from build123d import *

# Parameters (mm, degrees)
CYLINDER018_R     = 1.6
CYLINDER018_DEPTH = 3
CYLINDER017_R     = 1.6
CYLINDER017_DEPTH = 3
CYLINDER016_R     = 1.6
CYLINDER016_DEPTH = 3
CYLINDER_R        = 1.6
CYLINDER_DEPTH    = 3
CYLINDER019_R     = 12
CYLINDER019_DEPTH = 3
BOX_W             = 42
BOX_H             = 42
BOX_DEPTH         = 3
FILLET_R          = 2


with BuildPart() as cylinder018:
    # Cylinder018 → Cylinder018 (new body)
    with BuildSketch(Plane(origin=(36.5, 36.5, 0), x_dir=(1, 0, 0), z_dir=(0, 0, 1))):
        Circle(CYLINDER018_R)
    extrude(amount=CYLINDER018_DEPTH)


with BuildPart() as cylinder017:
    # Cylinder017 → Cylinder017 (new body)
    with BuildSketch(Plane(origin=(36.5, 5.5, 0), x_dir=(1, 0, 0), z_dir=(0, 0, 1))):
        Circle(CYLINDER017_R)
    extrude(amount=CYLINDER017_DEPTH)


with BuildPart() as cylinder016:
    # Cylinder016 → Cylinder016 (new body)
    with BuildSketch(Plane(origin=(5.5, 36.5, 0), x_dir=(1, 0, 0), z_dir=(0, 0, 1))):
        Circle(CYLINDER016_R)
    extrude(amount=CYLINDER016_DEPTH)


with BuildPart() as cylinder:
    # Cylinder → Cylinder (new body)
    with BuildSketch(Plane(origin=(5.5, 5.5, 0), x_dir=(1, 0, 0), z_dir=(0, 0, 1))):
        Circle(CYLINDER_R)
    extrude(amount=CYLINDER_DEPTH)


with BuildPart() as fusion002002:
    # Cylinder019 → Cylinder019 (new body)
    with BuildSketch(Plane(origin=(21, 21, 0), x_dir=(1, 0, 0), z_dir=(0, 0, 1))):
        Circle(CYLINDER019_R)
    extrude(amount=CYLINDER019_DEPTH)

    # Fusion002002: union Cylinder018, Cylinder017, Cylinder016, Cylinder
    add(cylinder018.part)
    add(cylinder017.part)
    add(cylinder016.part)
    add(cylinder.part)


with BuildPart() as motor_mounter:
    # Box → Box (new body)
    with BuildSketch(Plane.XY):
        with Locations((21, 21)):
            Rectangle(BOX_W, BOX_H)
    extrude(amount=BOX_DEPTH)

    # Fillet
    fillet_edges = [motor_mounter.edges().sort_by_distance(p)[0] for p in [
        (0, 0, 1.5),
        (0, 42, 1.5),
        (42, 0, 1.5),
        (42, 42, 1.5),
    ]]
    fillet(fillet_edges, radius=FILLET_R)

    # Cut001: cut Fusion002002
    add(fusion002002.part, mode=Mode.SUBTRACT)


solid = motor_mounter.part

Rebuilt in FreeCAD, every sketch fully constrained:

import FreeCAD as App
import Part
import Sketcher
from FreeCAD import Vector
Q = App.Units.Quantity


def edges_at(feature, points):
    """Names of the edges that pass closest to the given points."""
    edges = feature.Shape.Edges
    near = lambda p: min(range(len(edges)), key=lambda i: edges[i].distToShape(Part.Vertex(*p))[0])
    return sorted({f"Edge{near(p) + 1}" for p in points})

doc = App.newDocument("Part")
params = doc.addObject("Spreadsheet::Sheet", "Params")
for row, (alias, value) in enumerate([
    ("sketch1_diameter", "3.2 mm"),
    ("pad1_length", "3 mm"),
    ("sketch2_diameter", "3.2 mm"),
    ("pad2_length", "3 mm"),
    ("sketch3_diameter", "3.2 mm"),
    ("pad3_length", "3 mm"),
    ("sketch4_diameter", "3.2 mm"),
    ("pad4_length", "3 mm"),
    ("sketch5_diameter", "24 mm"),
    ("pad5_length", "3 mm"),
    ("sketch6_width", "42 mm"),
    ("pad6_length", "3 mm"),
    ("fillet_radius", "2 mm"),
], start=1):
    params.set(f"A{row}", alias)
    params.set(f"B{row}", "=" + value)
    params.setAlias(f"B{row}", alias)

body = doc.addObject("PartDesign::Body", "Body")

# Sketch on XY plane
sketch1 = body.newObject("Sketcher::SketchObject", "Sketch")
sketch1.AttachmentSupport = (doc.getObject("XY_Plane"), [""])
sketch1.MapMode = "FlatFace"
sketch1.addGeometry(Part.Circle(Vector(36.5, 36.5, 0), Vector(0, 0, 1), 1.6), False)
sketch1.addConstraint([
    Sketcher.Constraint("Diameter", 0, Q("3.2 mm")),
    Sketcher.Constraint("DistanceX", -1, 1, 0, 3, Q("36.5 mm")),
    Sketcher.Constraint("DistanceY", -1, 1, 0, 3, Q("36.5 mm")),
])
sketch1.setExpression("Constraints[0]", "Params.sketch1_diameter")
pad1 = body.newObject("PartDesign::Pad", "Pad")
pad1.Profile = sketch1
pad1.setExpression("Length", "Params.pad1_length")
body2 = doc.addObject("PartDesign::Body", "Body001")

# Sketch on XY plane
sketch2 = body2.newObject("Sketcher::SketchObject", "Sketch001")
sketch2.AttachmentSupport = (doc.getObject("XY_Plane001"), [""])
sketch2.MapMode = "FlatFace"
sketch2.addGeometry(Part.Circle(Vector(36.5, 5.5, 0), Vector(0, 0, 1), 1.6), False)
sketch2.addConstraint([
    Sketcher.Constraint("Diameter", 0, Q("3.2 mm")),
    Sketcher.Constraint("DistanceX", -1, 1, 0, 3, Q("36.5 mm")),
    Sketcher.Constraint("DistanceY", -1, 1, 0, 3, Q("5.5 mm")),
])
sketch2.setExpression("Constraints[0]", "Params.sketch2_diameter")
pad2 = body2.newObject("PartDesign::Pad", "Pad001")
pad2.Profile = sketch2
pad2.setExpression("Length", "Params.pad2_length")
body3 = doc.addObject("PartDesign::Body", "Body002")

# Sketch on XY plane
sketch3 = body3.newObject("Sketcher::SketchObject", "Sketch002")
sketch3.AttachmentSupport = (doc.getObject("XY_Plane002"), [""])
sketch3.MapMode = "FlatFace"
sketch3.addGeometry(Part.Circle(Vector(5.5, 36.5, 0), Vector(0, 0, 1), 1.6), False)
sketch3.addConstraint([
    Sketcher.Constraint("Diameter", 0, Q("3.2 mm")),
    Sketcher.Constraint("DistanceX", -1, 1, 0, 3, Q("5.5 mm")),
    Sketcher.Constraint("DistanceY", -1, 1, 0, 3, Q("36.5 mm")),
])
sketch3.setExpression("Constraints[0]", "Params.sketch3_diameter")
pad3 = body3.newObject("PartDesign::Pad", "Pad002")
pad3.Profile = sketch3
pad3.setExpression("Length", "Params.pad3_length")
body4 = doc.addObject("PartDesign::Body", "Body003")

# Sketch on XY plane
sketch4 = body4.newObject("Sketcher::SketchObject", "Sketch003")
sketch4.AttachmentSupport = (doc.getObject("XY_Plane003"), [""])
sketch4.MapMode = "FlatFace"
sketch4.addGeometry(Part.Circle(Vector(5.5, 5.5, 0), Vector(0, 0, 1), 1.6), False)
sketch4.addConstraint([
    Sketcher.Constraint("Diameter", 0, Q("3.2 mm")),
    Sketcher.Constraint("DistanceX", -1, 1, 0, 3, Q("5.5 mm")),
    Sketcher.Constraint("DistanceY", -1, 1, 0, 3, Q("5.5 mm")),
])
sketch4.setExpression("Constraints[0]", "Params.sketch4_diameter")
pad4 = body4.newObject("PartDesign::Pad", "Pad003")
pad4.Profile = sketch4
pad4.setExpression("Length", "Params.pad4_length")
body5 = doc.addObject("PartDesign::Body", "Body004")
body5.AllowCompound = True

# Sketch on XY plane
sketch5 = body5.newObject("Sketcher::SketchObject", "Sketch004")
sketch5.AttachmentSupport = (doc.getObject("XY_Plane004"), [""])
sketch5.MapMode = "FlatFace"
sketch5.addGeometry(Part.Circle(Vector(21, 21, 0), Vector(0, 0, 1), 12), False)
sketch5.addConstraint([
    Sketcher.Constraint("Diameter", 0, Q("24 mm")),
    Sketcher.Constraint("DistanceX", -1, 1, 0, 3, Q("21 mm")),
    Sketcher.Constraint("DistanceY", -1, 1, 0, 3, Q("21 mm")),
])
sketch5.setExpression("Constraints[0]", "Params.sketch5_diameter")
pad5 = body5.newObject("PartDesign::Pad", "Pad004")
pad5.Profile = sketch5
pad5.setExpression("Length", "Params.pad5_length")
doc.recompute()

boolean = body5.newObject("PartDesign::Boolean", "Boolean")
boolean.Type = "Fuse"
boolean.addObjects([body])
doc.recompute()

boolean2 = body5.newObject("PartDesign::Boolean", "Boolean001")
boolean2.Type = "Fuse"
boolean2.addObjects([body2])
doc.recompute()

boolean3 = body5.newObject("PartDesign::Boolean", "Boolean002")
boolean3.Type = "Fuse"
boolean3.addObjects([body3])
doc.recompute()

boolean4 = body5.newObject("PartDesign::Boolean", "Boolean003")
boolean4.Type = "Fuse"
boolean4.addObjects([body4])
body6 = doc.addObject("PartDesign::Body", "Body005")

# Sketch on XY plane
sketch6 = body6.newObject("Sketcher::SketchObject", "Sketch005")
sketch6.AttachmentSupport = (doc.getObject("XY_Plane005"), [""])
sketch6.MapMode = "FlatFace"
sketch6.addGeometry([
    Part.LineSegment(Vector(0, 42, 0), Vector(0, 0, 0)),
    Part.LineSegment(Vector(0, 0, 0), Vector(42, 0, 0)),
    Part.LineSegment(Vector(42, 0, 0), Vector(42, 42, 0)),
    Part.LineSegment(Vector(42, 42, 0), Vector(0, 42, 0)),
], False)
sketch6.addConstraint([
    Sketcher.Constraint("Coincident", 0, 2, 1, 1),
    Sketcher.Constraint("Coincident", 1, 2, 2, 1),
    Sketcher.Constraint("Coincident", 2, 2, 3, 1),
    Sketcher.Constraint("Coincident", 3, 2, 0, 1),
    Sketcher.Constraint("Vertical", 0),
    Sketcher.Constraint("Horizontal", 1),
    Sketcher.Constraint("Vertical", 2),
    Sketcher.Constraint("Horizontal", 3),
    Sketcher.Constraint("Coincident", 0, 2, -1, 1),
    Sketcher.Constraint("Equal", 3, 0),
    Sketcher.Constraint("DistanceX", 1, 1, 1, 2, Q("42 mm")),
])
sketch6.setExpression("Constraints[10]", "Params.sketch6_width")
pad6 = body6.newObject("PartDesign::Pad", "Pad005")
pad6.Profile = sketch6
pad6.setExpression("Length", "Params.pad6_length")
doc.recompute()

fillet = body6.newObject("PartDesign::Fillet", "Fillet")
fillet.Base = (pad6, edges_at(pad6, [
    (0, 0, 1.5),
    (0, 42, 1.5),
    (42, 0, 1.5),
    (42, 42, 1.5),
]))
fillet.setExpression("Radius", "Params.fillet_radius")
doc.recompute()

boolean5 = body6.newObject("PartDesign::Boolean", "Boolean004")
boolean5.Type = "Cut"
boolean5.addObjects([body5])

doc.recompute()
